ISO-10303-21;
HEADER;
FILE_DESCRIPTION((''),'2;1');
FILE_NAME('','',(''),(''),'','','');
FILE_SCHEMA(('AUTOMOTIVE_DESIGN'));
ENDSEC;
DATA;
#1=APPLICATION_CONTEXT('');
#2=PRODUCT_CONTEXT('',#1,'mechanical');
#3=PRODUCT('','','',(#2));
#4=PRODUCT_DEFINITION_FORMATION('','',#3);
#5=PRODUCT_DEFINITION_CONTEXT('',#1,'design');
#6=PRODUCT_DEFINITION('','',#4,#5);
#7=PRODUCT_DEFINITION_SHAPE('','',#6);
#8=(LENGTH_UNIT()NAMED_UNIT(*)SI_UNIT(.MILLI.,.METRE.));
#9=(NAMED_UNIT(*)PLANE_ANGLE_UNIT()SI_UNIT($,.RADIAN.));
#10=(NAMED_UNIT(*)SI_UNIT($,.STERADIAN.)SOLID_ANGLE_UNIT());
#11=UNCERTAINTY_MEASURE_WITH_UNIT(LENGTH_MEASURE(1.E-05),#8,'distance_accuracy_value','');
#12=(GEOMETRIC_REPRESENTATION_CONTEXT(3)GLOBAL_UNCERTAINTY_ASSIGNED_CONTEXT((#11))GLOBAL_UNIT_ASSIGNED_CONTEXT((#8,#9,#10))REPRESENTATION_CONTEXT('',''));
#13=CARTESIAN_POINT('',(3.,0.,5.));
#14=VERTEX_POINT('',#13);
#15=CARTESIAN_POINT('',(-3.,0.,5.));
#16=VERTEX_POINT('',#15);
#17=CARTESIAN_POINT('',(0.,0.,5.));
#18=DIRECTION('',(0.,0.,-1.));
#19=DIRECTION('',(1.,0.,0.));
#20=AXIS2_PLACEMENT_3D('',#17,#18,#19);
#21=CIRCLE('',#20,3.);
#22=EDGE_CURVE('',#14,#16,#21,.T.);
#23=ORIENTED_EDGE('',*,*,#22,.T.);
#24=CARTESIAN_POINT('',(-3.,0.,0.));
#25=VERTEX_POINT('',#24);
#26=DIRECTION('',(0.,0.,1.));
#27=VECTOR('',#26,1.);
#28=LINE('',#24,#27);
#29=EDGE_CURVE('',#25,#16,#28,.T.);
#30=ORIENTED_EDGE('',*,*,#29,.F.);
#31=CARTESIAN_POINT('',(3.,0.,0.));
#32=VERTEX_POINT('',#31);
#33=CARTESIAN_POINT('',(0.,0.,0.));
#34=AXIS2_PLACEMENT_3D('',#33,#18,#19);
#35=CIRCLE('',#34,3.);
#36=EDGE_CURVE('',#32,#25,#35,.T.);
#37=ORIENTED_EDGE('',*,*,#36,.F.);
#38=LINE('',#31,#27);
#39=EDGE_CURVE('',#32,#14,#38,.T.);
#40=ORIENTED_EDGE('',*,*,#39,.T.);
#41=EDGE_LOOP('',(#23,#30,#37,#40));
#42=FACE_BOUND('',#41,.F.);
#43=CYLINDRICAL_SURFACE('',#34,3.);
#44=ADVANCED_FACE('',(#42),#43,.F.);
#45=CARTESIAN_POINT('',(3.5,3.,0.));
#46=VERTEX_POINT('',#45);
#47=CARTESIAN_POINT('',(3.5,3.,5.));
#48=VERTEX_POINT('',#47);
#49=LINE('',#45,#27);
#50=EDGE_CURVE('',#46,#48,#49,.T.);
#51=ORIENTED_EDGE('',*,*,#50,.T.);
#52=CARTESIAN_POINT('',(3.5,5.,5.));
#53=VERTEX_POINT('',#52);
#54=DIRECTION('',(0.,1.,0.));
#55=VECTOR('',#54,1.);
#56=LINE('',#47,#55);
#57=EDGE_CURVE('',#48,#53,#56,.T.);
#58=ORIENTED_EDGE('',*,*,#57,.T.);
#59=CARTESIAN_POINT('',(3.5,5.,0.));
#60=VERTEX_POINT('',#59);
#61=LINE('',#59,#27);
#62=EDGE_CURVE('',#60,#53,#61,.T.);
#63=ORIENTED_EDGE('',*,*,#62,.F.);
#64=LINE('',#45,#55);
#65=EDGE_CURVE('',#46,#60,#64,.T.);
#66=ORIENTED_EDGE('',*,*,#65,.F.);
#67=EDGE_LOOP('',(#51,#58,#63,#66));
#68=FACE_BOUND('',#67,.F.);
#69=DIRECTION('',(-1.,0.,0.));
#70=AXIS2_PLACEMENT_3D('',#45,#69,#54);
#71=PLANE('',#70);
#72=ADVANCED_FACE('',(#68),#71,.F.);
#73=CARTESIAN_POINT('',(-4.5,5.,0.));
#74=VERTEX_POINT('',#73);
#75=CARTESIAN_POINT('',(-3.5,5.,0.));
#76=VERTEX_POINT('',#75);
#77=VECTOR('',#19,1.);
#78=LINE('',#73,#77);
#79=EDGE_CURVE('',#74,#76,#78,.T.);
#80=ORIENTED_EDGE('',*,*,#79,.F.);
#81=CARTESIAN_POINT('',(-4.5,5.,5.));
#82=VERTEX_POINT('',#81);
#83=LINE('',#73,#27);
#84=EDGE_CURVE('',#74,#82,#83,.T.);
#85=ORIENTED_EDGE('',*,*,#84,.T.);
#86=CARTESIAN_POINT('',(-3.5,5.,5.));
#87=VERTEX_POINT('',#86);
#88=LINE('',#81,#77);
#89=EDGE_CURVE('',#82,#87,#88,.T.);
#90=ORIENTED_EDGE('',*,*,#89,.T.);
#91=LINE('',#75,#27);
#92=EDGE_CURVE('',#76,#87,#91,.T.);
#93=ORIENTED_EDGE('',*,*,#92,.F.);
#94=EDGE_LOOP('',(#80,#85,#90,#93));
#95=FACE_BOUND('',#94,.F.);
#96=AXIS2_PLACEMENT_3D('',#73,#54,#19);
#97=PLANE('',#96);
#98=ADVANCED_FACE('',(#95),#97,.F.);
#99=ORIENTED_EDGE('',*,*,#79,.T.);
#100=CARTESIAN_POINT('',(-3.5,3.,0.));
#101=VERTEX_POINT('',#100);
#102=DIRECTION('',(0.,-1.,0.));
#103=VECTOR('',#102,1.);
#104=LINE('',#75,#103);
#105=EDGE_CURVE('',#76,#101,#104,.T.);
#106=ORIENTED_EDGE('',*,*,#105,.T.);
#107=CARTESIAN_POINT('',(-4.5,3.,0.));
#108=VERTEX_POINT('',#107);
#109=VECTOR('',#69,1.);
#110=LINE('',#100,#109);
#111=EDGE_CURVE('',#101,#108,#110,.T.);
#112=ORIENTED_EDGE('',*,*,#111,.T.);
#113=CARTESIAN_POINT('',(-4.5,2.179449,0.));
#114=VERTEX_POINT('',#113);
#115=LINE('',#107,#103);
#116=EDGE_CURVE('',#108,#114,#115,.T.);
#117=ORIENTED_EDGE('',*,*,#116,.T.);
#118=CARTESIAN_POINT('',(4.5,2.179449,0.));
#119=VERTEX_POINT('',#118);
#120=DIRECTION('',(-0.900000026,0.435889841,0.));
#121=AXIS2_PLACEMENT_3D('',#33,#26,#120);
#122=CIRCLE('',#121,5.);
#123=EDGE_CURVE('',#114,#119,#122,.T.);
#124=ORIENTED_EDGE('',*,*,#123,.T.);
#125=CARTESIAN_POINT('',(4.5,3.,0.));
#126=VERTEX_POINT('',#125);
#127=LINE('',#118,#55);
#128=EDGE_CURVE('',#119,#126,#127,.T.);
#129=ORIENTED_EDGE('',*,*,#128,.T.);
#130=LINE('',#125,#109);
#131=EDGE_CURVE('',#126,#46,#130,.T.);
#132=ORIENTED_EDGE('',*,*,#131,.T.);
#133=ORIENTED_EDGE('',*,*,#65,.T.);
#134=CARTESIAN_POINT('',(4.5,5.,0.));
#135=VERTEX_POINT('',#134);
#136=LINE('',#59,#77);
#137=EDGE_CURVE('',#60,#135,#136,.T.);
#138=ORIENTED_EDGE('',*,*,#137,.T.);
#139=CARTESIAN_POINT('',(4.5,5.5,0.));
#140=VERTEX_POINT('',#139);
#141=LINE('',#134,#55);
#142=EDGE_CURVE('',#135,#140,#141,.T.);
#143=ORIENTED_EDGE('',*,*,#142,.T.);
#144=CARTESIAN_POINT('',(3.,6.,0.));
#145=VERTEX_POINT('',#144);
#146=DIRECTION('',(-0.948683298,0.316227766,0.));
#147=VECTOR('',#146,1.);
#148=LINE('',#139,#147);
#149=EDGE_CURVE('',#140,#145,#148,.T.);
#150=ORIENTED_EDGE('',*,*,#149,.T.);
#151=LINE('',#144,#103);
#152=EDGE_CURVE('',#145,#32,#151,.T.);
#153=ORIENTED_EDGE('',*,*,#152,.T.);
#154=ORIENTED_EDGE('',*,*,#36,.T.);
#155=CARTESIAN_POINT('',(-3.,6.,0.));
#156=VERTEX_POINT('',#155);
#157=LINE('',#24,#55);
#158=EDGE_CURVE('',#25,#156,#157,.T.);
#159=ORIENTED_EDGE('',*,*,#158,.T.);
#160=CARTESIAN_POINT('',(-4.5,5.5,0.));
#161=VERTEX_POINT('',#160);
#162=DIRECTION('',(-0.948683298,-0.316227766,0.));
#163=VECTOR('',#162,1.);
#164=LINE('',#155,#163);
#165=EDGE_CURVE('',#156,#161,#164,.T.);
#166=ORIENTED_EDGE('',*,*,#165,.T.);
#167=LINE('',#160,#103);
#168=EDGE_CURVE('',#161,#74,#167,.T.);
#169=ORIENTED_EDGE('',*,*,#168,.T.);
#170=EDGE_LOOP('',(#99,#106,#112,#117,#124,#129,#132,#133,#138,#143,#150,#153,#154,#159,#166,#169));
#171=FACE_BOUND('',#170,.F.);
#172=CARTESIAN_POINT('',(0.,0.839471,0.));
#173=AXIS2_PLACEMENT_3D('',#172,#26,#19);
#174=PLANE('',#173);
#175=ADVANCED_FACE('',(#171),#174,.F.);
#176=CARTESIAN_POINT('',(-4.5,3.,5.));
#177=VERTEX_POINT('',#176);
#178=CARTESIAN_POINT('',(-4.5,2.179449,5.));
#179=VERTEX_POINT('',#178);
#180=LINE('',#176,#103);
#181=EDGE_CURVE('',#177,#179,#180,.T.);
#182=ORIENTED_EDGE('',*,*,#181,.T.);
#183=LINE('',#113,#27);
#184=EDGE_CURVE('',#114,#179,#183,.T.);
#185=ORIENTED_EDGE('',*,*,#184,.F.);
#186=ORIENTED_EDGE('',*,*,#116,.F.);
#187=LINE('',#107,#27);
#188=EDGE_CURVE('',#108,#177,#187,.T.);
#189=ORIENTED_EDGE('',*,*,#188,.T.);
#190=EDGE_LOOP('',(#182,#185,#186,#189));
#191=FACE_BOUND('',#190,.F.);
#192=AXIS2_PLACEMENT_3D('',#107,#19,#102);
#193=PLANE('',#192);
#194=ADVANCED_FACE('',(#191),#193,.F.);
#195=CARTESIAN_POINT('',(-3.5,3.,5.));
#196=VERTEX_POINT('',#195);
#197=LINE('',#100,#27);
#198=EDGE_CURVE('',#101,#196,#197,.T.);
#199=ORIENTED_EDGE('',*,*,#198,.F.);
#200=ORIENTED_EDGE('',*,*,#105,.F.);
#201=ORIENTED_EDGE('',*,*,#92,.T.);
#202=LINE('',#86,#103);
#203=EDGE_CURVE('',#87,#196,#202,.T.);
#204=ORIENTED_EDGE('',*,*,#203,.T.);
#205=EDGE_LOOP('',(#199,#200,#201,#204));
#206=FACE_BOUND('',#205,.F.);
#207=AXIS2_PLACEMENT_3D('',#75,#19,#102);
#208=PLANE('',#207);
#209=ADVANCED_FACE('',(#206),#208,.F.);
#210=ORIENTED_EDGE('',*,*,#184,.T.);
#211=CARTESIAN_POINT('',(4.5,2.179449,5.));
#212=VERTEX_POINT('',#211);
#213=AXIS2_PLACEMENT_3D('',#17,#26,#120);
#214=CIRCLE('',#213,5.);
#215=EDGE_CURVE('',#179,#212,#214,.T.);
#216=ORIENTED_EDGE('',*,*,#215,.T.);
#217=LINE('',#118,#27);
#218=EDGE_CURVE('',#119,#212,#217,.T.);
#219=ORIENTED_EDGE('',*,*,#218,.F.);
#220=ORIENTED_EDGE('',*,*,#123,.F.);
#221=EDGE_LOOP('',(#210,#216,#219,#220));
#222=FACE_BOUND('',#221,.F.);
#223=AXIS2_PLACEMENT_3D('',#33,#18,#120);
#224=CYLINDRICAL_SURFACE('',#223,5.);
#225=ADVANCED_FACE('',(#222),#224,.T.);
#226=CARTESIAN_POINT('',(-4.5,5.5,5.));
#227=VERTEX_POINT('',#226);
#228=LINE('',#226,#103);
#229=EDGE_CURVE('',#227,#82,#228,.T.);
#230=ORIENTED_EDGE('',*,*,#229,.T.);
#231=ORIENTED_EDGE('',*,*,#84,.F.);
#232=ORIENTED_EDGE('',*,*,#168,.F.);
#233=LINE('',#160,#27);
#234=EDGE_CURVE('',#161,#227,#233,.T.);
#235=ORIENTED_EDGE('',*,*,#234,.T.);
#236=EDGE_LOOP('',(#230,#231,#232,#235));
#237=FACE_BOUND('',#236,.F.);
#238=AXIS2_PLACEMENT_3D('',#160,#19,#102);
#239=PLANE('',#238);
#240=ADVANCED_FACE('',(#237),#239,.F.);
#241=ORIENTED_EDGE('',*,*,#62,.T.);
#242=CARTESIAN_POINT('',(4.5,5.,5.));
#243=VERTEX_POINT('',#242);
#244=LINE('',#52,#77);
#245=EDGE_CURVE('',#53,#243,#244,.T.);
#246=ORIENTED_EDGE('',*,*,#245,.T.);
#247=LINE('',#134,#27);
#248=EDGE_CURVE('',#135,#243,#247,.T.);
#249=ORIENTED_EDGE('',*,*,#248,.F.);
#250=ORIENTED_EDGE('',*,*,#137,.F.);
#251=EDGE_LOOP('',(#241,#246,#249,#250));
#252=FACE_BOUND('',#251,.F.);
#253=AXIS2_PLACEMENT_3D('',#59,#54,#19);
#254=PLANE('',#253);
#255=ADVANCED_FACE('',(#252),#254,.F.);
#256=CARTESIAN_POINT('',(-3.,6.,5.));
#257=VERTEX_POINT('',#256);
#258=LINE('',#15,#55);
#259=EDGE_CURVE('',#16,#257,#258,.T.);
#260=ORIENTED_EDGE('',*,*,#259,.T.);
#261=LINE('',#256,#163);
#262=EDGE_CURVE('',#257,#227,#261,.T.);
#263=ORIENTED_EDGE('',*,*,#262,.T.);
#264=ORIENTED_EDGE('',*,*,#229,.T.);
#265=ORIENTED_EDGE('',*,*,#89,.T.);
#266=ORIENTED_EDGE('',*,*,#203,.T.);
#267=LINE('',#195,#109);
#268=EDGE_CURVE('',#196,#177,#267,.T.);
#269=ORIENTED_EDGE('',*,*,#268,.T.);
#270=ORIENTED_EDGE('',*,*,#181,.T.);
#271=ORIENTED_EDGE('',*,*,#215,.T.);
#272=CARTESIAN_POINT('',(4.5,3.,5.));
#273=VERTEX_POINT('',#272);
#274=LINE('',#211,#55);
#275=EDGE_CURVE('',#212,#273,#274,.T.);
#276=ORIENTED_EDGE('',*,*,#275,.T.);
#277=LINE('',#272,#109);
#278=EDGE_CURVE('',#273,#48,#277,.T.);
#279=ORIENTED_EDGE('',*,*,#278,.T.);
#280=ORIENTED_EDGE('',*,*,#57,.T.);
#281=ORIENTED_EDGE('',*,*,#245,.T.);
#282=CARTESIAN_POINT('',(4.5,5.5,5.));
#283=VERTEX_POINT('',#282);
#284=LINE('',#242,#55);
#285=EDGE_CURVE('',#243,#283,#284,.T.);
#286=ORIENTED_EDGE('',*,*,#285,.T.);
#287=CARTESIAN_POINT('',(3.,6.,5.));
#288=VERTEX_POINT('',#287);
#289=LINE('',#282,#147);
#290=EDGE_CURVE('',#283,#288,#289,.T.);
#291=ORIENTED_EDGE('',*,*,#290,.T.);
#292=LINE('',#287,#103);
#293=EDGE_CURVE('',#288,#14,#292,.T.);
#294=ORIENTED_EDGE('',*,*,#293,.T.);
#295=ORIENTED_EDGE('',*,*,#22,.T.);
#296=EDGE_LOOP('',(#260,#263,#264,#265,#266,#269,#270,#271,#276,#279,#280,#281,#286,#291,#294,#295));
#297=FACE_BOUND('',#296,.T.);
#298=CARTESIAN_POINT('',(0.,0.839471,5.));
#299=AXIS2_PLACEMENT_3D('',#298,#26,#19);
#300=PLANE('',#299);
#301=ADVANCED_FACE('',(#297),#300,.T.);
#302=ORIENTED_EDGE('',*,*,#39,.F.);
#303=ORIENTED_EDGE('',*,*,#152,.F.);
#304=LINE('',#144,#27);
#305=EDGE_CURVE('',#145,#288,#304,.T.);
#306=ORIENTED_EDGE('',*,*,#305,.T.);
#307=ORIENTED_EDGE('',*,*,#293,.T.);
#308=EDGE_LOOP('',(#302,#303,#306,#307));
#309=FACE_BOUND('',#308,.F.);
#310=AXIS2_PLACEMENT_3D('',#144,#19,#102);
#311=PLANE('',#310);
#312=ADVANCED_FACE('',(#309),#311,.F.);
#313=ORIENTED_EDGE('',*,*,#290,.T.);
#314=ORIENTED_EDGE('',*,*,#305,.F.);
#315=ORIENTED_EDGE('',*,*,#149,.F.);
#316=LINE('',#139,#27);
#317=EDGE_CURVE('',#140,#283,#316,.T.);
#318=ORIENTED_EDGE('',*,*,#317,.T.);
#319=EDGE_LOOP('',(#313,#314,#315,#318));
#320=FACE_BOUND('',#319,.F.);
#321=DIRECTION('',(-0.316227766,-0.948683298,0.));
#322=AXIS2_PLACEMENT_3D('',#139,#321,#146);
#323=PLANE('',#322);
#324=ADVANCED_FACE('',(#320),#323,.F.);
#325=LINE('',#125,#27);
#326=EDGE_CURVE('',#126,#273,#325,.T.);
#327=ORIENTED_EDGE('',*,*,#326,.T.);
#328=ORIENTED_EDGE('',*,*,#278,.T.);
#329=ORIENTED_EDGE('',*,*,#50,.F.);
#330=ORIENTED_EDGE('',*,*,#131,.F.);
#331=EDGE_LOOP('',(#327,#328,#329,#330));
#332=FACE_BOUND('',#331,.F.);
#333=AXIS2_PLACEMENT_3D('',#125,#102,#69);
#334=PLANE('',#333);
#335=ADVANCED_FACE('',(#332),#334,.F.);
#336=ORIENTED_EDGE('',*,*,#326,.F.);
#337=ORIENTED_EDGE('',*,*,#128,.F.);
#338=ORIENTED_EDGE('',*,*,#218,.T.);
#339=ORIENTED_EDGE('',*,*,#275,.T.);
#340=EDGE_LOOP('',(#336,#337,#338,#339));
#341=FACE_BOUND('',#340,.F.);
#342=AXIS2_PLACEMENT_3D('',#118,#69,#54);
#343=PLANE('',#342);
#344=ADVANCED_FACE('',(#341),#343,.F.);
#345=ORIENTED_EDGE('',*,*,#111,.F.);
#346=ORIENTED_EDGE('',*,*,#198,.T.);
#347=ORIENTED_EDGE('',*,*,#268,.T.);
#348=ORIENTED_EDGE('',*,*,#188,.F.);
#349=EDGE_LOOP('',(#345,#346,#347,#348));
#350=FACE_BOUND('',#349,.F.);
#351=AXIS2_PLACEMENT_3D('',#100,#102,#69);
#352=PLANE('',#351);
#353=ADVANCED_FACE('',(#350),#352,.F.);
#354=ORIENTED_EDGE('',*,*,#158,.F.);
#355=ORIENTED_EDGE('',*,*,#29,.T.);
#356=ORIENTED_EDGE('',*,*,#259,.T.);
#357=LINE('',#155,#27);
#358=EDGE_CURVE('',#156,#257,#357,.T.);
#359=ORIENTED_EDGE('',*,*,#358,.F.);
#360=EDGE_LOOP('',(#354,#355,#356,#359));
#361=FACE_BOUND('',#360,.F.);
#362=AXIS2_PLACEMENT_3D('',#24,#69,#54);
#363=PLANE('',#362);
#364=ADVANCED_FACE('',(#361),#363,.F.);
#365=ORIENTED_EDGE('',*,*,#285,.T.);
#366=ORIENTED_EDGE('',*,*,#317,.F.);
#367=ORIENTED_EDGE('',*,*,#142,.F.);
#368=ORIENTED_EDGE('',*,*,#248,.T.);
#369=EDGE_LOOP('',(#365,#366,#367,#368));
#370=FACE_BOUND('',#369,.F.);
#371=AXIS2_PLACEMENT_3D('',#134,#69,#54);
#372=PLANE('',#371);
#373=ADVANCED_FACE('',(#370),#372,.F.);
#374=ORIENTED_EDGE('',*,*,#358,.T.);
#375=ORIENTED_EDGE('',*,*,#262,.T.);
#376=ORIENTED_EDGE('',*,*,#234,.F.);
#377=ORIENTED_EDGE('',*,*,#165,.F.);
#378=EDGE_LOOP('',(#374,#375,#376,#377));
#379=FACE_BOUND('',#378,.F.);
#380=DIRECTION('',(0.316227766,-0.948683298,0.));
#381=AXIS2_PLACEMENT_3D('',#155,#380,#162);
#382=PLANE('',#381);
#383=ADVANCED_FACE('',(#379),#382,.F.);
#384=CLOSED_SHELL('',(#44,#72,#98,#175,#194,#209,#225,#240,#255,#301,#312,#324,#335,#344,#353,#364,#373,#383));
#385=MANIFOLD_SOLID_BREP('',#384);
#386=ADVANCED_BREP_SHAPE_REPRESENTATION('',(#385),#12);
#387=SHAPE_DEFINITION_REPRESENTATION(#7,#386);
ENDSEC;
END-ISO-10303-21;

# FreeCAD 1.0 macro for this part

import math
import FreeCAD as App
import Part
import Sketcher

V = App.Vector
Q = App.Units.Quantity

doc = App.newDocument("Part")
body = doc.addObject("PartDesign::Body", "Body")

# Sketch on XY plane
sketch1 = doc.addObject("Sketcher::SketchObject", "Sketch")
body.addObject(sketch1)
sketch1.AttachmentSupport = (doc.XY_Plane, [""])
sketch1.MapMode = "FlatFace"
sketch1.addGeometry([
    Part.LineSegment(V(-4.5, 3, 0), V(-4.5, 2.2, 0)),  # 0
    Part.ArcOfCircle(Part.Circle(V(0, 0, 0), V(0, 0, 1), 5), math.radians(154), math.radians(386)),  # 1
    Part.LineSegment(V(4.5, 2.2, 0), V(4.5, 3, 0)),  # 2
    Part.LineSegment(V(4.5, 3, 0), V(3.5, 3, 0)),  # 3
    Part.LineSegment(V(3.5, 3, 0), V(3.5, 5, 0)),  # 4
    Part.LineSegment(V(3.5, 5, 0), V(4.5, 5, 0)),  # 5
    Part.LineSegment(V(4.5, 5, 0), V(4.5, 5.5, 0)),  # 6
    Part.LineSegment(V(4.5, 5.5, 0), V(3, 6, 0)),  # 7
    Part.LineSegment(V(3, 6, 0), V(3, 0, 0)),  # 8
    Part.ArcOfCircle(Part.Circle(V(0, 0, 0), V(0, 0, 1), 3), math.radians(180), math.radians(360)),  # 9
    Part.LineSegment(V(-3, 0, 0), V(-3, 6, 0)),  # 10
    Part.LineSegment(V(-3, 6, 0), V(-4.5, 5.5, 0)),  # 11
    Part.LineSegment(V(-4.5, 5.5, 0), V(-4.5, 5, 0)),  # 12
    Part.LineSegment(V(-4.5, 5, 0), V(-3.5, 5, 0)),  # 13
    Part.LineSegment(V(-3.5, 5, 0), V(-3.5, 3, 0)),  # 14
    Part.LineSegment(V(-3.5, 3, 0), V(-4.5, 3, 0)),  # 15
], False)
sketch1.addConstraint([
    Sketcher.Constraint("Coincident", 0, 2, 1, 1),
    Sketcher.Constraint("Coincident", 1, 2, 2, 1),
    Sketcher.Constraint("Coincident", 2, 2, 3, 1),
    Sketcher.Constraint("Coincident", 3, 2, 4, 1),
    Sketcher.Constraint("Coincident", 4, 2, 5, 1),
    Sketcher.Constraint("Coincident", 5, 2, 6, 1),
    Sketcher.Constraint("Coincident", 6, 2, 7, 1),
    Sketcher.Constraint("Coincident", 7, 2, 8, 1),
    Sketcher.Constraint("Tangent", 8, 2, 9, 2),
    Sketcher.Constraint("Tangent", 9, 1, 10, 1),
    Sketcher.Constraint("Coincident", 10, 2, 11, 1),
    Sketcher.Constraint("Coincident", 11, 2, 12, 1),
    Sketcher.Constraint("Coincident", 12, 2, 13, 1),
    Sketcher.Constraint("Coincident", 13, 2, 14, 1),
    Sketcher.Constraint("Coincident", 14, 2, 15, 1),
    Sketcher.Constraint("Coincident", 15, 2, 0, 1),
    Sketcher.Constraint("Vertical", 0),
    Sketcher.Constraint("Vertical", 2),
    Sketcher.Constraint("Horizontal", 3),
    Sketcher.Constraint("Vertical", 4),
    Sketcher.Constraint("Horizontal", 5),
    Sketcher.Constraint("Vertical", 6),
    Sketcher.Constraint("Vertical", 8),
    Sketcher.Constraint("Vertical", 10),
    Sketcher.Constraint("Vertical", 12),
    Sketcher.Constraint("Horizontal", 13),
    Sketcher.Constraint("Vertical", 14),
    Sketcher.Constraint("Horizontal", 15),
    Sketcher.Constraint("Coincident", 1, 3, -1, 1),
    Sketcher.Constraint("Coincident", 9, 3, -1, 1),
    Sketcher.Constraint("Symmetric", 6, 2, 11, 2, -2),
    Sketcher.Constraint("Symmetric", 4, 2, 13, 2, -2),
    Sketcher.Constraint("Symmetric", 2, 2, 15, 2, -2),
    Sketcher.Constraint("Horizontal", 7, 2, 10, 2),
    Sketcher.Constraint("Vertical", 2, 2, 5, 2),
    Sketcher.Constraint("Radius", 1, Q("5 mm")),
    Sketcher.Constraint("Radius", 9, Q("3 mm")),
    Sketcher.Constraint("DistanceX", 3, 2, 3, 1, Q("1 mm")),
    Sketcher.Constraint("DistanceY", 4, 1, 4, 2, Q("2 mm")),
    Sketcher.Constraint("DistanceY", 8, 2, 8, 1, Q("6 mm")),
    Sketcher.Constraint("DistanceY", 6, 1, 6, 2, Q("0.5 mm")),
    Sketcher.Constraint("DistanceY", -1, 1, 2, 2, Q("3 mm")),
    Sketcher.Constraint("DistanceX", 0, 2, 1, 2, Q("9 mm")),
])
pad1 = doc.addObject("PartDesign::Pad", "Pad")
body.addObject(pad1)
pad1.Profile = sketch1
pad1.Length = 5

doc.recompute()
